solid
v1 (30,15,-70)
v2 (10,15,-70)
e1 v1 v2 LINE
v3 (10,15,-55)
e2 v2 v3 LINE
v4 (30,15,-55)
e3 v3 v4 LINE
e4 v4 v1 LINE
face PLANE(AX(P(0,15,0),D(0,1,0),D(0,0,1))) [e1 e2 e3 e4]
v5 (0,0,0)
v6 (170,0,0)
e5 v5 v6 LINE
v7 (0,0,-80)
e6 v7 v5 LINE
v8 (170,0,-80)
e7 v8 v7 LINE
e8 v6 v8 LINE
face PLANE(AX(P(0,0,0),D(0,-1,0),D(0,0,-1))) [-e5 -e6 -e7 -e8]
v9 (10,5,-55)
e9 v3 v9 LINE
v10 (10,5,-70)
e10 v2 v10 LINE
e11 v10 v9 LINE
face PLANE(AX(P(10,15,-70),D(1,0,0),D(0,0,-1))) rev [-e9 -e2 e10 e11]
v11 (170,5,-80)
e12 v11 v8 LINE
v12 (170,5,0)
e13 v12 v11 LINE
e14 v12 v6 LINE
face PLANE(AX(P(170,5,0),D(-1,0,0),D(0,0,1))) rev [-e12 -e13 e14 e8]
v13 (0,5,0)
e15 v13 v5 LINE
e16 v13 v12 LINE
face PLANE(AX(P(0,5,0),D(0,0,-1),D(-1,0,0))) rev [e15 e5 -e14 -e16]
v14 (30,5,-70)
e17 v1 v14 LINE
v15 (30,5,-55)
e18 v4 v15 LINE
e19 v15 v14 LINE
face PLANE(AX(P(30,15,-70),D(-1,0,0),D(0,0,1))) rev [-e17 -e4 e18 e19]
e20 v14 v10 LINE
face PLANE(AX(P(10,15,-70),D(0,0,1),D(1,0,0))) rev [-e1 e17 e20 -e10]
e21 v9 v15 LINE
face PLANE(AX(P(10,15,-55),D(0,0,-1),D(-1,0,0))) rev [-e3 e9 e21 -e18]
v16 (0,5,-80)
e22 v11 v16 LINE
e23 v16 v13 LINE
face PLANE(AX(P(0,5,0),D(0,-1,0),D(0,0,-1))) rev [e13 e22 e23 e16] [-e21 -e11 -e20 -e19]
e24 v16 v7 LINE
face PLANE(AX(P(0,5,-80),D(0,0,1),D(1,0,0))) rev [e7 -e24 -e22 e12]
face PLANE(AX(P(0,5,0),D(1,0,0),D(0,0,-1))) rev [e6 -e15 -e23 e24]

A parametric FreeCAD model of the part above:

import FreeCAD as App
import Part
import Sketcher
Q = App.Units.Quantity


def add_polygon(sketch, points):
    """Adds a closed chain of lines whose ends are joined by coincident constraints."""
    first, n = sketch.GeometryCount, len(points)
    for a, b in zip(points, points[1:] + points[:1]):
        sketch.addGeometry(Part.LineSegment(App.Vector(*a, 0), App.Vector(*b, 0)), False)
    for i in range(n):
        sketch.addConstraint(Sketcher.Constraint("Coincident", first + i, 2, first + (i + 1) % n, 1))

doc = App.newDocument("Part")
body = doc.addObject("PartDesign::Body", "Body")

# Sketch on XZ plane
sketch1 = body.newObject("Sketcher::SketchObject", "Sketch")
sketch1.AttachmentSupport = (doc.getObject("XZ_Plane"), [""])
sketch1.MapMode = "FlatFace"
add_polygon(sketch1, [(0, -80), (0, 0), (170, 0), (170, -80)])  # lines 0-3
sketch1.addConstraint([
    Sketcher.Constraint("Vertical", 0),
    Sketcher.Constraint("Horizontal", 1),
    Sketcher.Constraint("Vertical", 2),
    Sketcher.Constraint("Horizontal", 3),
    Sketcher.Constraint("Coincident", 0, 2, -1, 1),
    Sketcher.Constraint("DistanceX", 1, 1, 1, 2, Q("170 mm")),
    Sketcher.Constraint("DistanceY", 0, 1, 0, 2, Q("80 mm")),
])
pad1 = body.newObject("PartDesign::Pad", "Pad")
pad1.Profile = sketch1
pad1.Length = 5
pad1.Reversed = True

# Sketch on XZ plane
sketch2 = body.newObject("Sketcher::SketchObject", "Sketch001")
sketch2.AttachmentSupport = (doc.getObject("XZ_Plane"), [""])
sketch2.MapMode = "FlatFace"
sketch2.AttachmentOffset = App.Placement(App.Vector(0, 0, -5), App.Rotation())
add_polygon(sketch2, [(10, -70), (10, -55), (30, -55), (30, -70)])  # lines 0-3
sketch2.addConstraint([
    Sketcher.Constraint("Vertical", 0),
    Sketcher.Constraint("Horizontal", 1),
    Sketcher.Constraint("Vertical", 2),
    Sketcher.Constraint("Horizontal", 3),
    Sketcher.Constraint("DistanceX", 1, 1, 1, 2, Q("20 mm")),
    Sketcher.Constraint("DistanceY", 0, 1, 0, 2, Q("15 mm")),
    Sketcher.Constraint("DistanceX", -1, 1, 0, 2, Q("10 mm")),
    Sketcher.Constraint("DistanceY", 0, 2, -1, 1, Q("55 mm")),
])
pad2 = body.newObject("PartDesign::Pad", "Pad001")
pad2.Profile = sketch2
pad2.Length = 10
pad2.Reversed = True

doc.recompute()
